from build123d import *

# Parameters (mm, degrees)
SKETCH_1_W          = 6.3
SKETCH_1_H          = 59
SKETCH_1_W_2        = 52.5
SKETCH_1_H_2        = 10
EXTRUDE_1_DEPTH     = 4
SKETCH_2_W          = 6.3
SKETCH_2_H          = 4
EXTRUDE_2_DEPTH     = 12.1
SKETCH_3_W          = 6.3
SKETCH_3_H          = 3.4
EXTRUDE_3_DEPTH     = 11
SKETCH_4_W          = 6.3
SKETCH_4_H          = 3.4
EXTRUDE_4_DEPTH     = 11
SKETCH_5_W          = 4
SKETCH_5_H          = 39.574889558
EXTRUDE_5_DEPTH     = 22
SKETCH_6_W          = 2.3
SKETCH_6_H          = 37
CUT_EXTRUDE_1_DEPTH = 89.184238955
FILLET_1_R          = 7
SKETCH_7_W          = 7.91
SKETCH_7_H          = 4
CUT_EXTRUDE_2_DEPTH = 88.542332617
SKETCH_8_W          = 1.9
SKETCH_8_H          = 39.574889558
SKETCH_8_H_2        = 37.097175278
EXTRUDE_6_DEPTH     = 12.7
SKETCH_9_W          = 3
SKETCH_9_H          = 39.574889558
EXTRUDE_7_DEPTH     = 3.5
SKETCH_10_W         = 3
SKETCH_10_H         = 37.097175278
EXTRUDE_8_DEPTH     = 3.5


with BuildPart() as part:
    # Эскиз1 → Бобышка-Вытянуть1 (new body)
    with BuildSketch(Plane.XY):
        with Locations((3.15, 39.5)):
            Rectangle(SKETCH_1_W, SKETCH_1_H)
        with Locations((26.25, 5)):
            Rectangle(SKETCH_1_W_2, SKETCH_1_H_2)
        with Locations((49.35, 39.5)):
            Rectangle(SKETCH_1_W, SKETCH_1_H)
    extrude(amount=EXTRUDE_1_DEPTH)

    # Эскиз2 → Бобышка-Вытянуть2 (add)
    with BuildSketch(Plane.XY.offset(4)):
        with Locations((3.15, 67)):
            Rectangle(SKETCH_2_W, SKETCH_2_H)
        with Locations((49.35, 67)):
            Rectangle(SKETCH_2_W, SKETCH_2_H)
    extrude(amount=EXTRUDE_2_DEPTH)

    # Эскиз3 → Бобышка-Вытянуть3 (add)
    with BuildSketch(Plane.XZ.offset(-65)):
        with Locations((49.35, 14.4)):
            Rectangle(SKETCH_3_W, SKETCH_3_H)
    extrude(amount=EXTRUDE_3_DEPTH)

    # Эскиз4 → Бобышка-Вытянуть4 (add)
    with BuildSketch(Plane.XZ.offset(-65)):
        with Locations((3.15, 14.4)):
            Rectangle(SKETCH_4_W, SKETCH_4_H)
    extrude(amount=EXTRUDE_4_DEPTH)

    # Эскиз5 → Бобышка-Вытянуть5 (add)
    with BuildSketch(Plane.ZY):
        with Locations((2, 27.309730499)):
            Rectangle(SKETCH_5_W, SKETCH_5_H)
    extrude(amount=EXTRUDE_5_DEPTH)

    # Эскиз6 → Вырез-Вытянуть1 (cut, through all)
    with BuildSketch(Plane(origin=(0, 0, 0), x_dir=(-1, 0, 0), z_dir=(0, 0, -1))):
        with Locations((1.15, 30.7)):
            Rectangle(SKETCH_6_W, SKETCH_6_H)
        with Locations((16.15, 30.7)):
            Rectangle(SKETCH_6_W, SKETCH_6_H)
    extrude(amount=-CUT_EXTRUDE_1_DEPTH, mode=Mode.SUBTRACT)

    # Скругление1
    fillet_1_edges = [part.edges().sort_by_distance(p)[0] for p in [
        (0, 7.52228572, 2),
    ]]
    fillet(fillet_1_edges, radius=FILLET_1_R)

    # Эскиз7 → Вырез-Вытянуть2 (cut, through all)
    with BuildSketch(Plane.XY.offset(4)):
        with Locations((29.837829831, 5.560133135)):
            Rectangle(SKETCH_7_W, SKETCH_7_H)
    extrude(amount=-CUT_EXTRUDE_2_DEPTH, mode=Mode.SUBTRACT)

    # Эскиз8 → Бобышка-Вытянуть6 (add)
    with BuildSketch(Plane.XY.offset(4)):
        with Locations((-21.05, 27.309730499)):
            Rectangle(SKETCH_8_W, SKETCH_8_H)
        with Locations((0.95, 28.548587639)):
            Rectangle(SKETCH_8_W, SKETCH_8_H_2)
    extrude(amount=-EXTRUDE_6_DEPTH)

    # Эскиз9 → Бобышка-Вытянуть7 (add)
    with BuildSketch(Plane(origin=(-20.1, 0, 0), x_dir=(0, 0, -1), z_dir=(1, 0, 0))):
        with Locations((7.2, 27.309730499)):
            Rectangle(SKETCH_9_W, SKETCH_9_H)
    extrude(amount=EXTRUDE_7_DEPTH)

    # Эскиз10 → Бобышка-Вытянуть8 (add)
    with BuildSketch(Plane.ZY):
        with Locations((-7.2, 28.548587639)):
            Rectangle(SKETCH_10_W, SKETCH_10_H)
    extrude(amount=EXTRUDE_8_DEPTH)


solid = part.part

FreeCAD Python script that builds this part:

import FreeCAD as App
import Part
import Sketcher
Q = App.Units.Quantity


def edges_at(feature, points):
    """Names of the edges that pass closest to the given points."""
    edges = feature.Shape.Edges
    near = lambda p: min(range(len(edges)), key=lambda i: edges[i].distToShape(Part.Vertex(*p))[0])
    return sorted({f"Edge{near(p) + 1}" for p in points})

doc = App.newDocument("Part")
body = doc.addObject("PartDesign::Body", "Body")

sketch1 = doc.addObject("Sketcher::SketchObject", "Sketch")
body.addObject(sketch1)
sketch1.AttachmentSupport = (doc.XY_Plane, [""])
sketch1.MapMode = "FlatFace"
sketch1.addGeometry(Part.LineSegment(App.Vector(0, 69, 0), App.Vector(0, 0, 0)), False)
sketch1.addGeometry(Part.LineSegment(App.Vector(0, 0, 0), App.Vector(52, 0, 0)), False)
sketch1.addGeometry(Part.LineSegment(App.Vector(52, 0, 0), App.Vector(52, 69, 0)), False)
sketch1.addGeometry(Part.LineSegment(App.Vector(52, 69, 0), App.Vector(46, 69, 0)), False)
sketch1.addGeometry(Part.LineSegment(App.Vector(46, 69, 0), App.Vector(46, 10, 0)), False)
sketch1.addGeometry(Part.LineSegment(App.Vector(46, 10, 0), App.Vector(6, 10, 0)), False)
sketch1.addGeometry(Part.LineSegment(App.Vector(6, 10, 0), App.Vector(6, 69, 0)), False)
sketch1.addGeometry(Part.LineSegment(App.Vector(6, 69, 0), App.Vector(0, 69, 0)), False)
sketch1.addConstraint(Sketcher.Constraint("Coincident", 0, 2, 1, 1))
sketch1.addConstraint(Sketcher.Constraint("Coincident", 1, 2, 2, 1))
sketch1.addConstraint(Sketcher.Constraint("Coincident", 2, 2, 3, 1))
sketch1.addConstraint(Sketcher.Constraint("Coincident", 3, 2, 4, 1))
sketch1.addConstraint(Sketcher.Constraint("Coincident", 4, 2, 5, 1))
sketch1.addConstraint(Sketcher.Constraint("Coincident", 5, 2, 6, 1))
sketch1.addConstraint(Sketcher.Constraint("Coincident", 6, 2, 7, 1))
sketch1.addConstraint(Sketcher.Constraint("Coincident", 7, 2, 0, 1))
sketch1.addConstraint(Sketcher.Constraint("Vertical", 0))
sketch1.addConstraint(Sketcher.Constraint("Horizontal", 1))
sketch1.addConstraint(Sketcher.Constraint("Vertical", 2))
sketch1.addConstraint(Sketcher.Constraint("Horizontal", 3))
sketch1.addConstraint(Sketcher.Constraint("Vertical", 4))
sketch1.addConstraint(Sketcher.Constraint("Horizontal", 5))
sketch1.addConstraint(Sketcher.Constraint("Vertical", 6))
sketch1.addConstraint(Sketcher.Constraint("Horizontal", 7))
sketch1.addConstraint(Sketcher.Constraint("Coincident", 0, 2, -1, 1))
sketch1.addConstraint(Sketcher.Constraint("Horizontal", 3, 2, 6, 2))
sketch1.addConstraint(Sketcher.Constraint("Equal", 3, 7))
sketch1.addConstraint(Sketcher.Constraint("DistanceY", 0, 2, 0, 1, Q("69 mm")))
sketch1.addConstraint(Sketcher.Constraint("DistanceY", 4, 2, 4, 1, Q("59 mm")))
sketch1.addConstraint(Sketcher.Constraint("DistanceX", 1, 1, 1, 2, Q("52.5 mm")))
sketch1.addConstraint(Sketcher.Constraint("DistanceX", 3, 2, 3, 1, Q("6.3 mm")))
pad1 = doc.addObject("PartDesign::Pad", "Pad")
body.addObject(pad1)
pad1.Profile = sketch1
pad1.Length = 4

sketch2 = doc.addObject("Sketcher::SketchObject", "Sketch001")
body.addObject(sketch2)
sketch2.AttachmentSupport = (doc.XY_Plane, [""])
sketch2.MapMode = "FlatFace"
sketch2.AttachmentOffset = App.Placement(App.Vector(0, 0, 4), App.Rotation())
sketch2.addGeometry(Part.LineSegment(App.Vector(0, 69, 0), App.Vector(0, 65, 0)), False)
sketch2.addGeometry(Part.LineSegment(App.Vector(0, 65, 0), App.Vector(6.3, 65, 0)), False)
sketch2.addGeometry(Part.LineSegment(App.Vector(6.3, 65, 0), App.Vector(6.3, 69, 0)), False)
sketch2.addGeometry(Part.LineSegment(App.Vector(6.3, 69, 0), App.Vector(0, 69, 0)), False)
sketch2.addGeometry(Part.LineSegment(App.Vector(46.2, 69, 0), App.Vector(46.2, 65, 0)), False)
sketch2.addGeometry(Part.LineSegment(App.Vector(46.2, 65, 0), App.Vector(52.5, 65, 0)), False)
sketch2.addGeometry(Part.LineSegment(App.Vector(52.5, 65, 0), App.Vector(52.5, 69, 0)), False)
sketch2.addGeometry(Part.LineSegment(App.Vector(52.5, 69, 0), App.Vector(46.2, 69, 0)), False)
sketch2.addConstraint(Sketcher.Constraint("Coincident", 0, 2, 1, 1))
sketch2.addConstraint(Sketcher.Constraint("Coincident", 1, 2, 2, 1))
sketch2.addConstraint(Sketcher.Constraint("Coincident", 2, 2, 3, 1))
sketch2.addConstraint(Sketcher.Constraint("Coincident", 3, 2, 0, 1))
sketch2.addConstraint(Sketcher.Constraint("Coincident", 4, 2, 5, 1))
sketch2.addConstraint(Sketcher.Constraint("Coincident", 5, 2, 6, 1))
sketch2.addConstraint(Sketcher.Constraint("Coincident", 6, 2, 7, 1))
sketch2.addConstraint(Sketcher.Constraint("Coincident", 7, 2, 4, 1))
sketch2.addConstraint(Sketcher.Constraint("Vertical", 0))
sketch2.addConstraint(Sketcher.Constraint("Horizontal", 1))
sketch2.addConstraint(Sketcher.Constraint("Vertical", 2))
sketch2.addConstraint(Sketcher.Constraint("Horizontal", 3))
sketch2.addConstraint(Sketcher.Constraint("Vertical", 4))
sketch2.addConstraint(Sketcher.Constraint("Horizontal", 5))
sketch2.addConstraint(Sketcher.Constraint("Vertical", 6))
sketch2.addConstraint(Sketcher.Constraint("Horizontal", 7))
sketch2.addConstraint(Sketcher.Constraint("PointOnObject", 0, 2, -2))
sketch2.addConstraint(Sketcher.Constraint("Horizontal", 1, 2, 4, 2))
sketch2.addConstraint(Sketcher.Constraint("Horizontal", 3, 2, 6, 2))
sketch2.addConstraint(Sketcher.Constraint("Equal", 3, 5))
sketch2.addConstraint(Sketcher.Constraint("DistanceY", 0, 2, 0, 1, Q("4 mm")))
sketch2.addConstraint(Sketcher.Constraint("DistanceX", 1, 1, 1, 2, Q("6.3 mm")))
sketch2.addConstraint(Sketcher.Constraint("DistanceY", -1, 1, 0, 2, Q("65 mm")))
sketch2.addConstraint(Sketcher.Constraint("DistanceX", -1, 1, 4, 2, Q("46.2 mm")))
pad2 = doc.addObject("PartDesign::Pad", "Pad001")
body.addObject(pad2)
pad2.Profile = sketch2
pad2.Length = 12.1

sketch3 = doc.addObject("Sketcher::SketchObject", "Sketch002")
body.addObject(sketch3)
sketch3.AttachmentSupport = (doc.XZ_Plane, [""])
sketch3.MapMode = "FlatFace"
sketch3.AttachmentOffset = App.Placement(App.Vector(0, 0, -65), App.Rotation())
sketch3.addGeometry(Part.LineSegment(App.Vector(46.2, 16.1, 0), App.Vector(46.2, 12.7, 0)), False)
sketch3.addGeometry(Part.LineSegment(App.Vector(46.2, 12.7, 0), App.Vector(52.5, 12.7, 0)), False)
sketch3.addGeometry(Part.LineSegment(App.Vector(52.5, 12.7, 0), App.Vector(52.5, 16.1, 0)), False)
sketch3.addGeometry(Part.LineSegment(App.Vector(52.5, 16.1, 0), App.Vector(46.2, 16.1, 0)), False)
sketch3.addConstraint(Sketcher.Constraint("Coincident", 0, 2, 1, 1))
sketch3.addConstraint(Sketcher.Constraint("Coincident", 1, 2, 2, 1))
sketch3.addConstraint(Sketcher.Constraint("Coincident", 2, 2, 3, 1))
sketch3.addConstraint(Sketcher.Constraint("Coincident", 3, 2, 0, 1))
sketch3.addConstraint(Sketcher.Constraint("Vertical", 0))
sketch3.addConstraint(Sketcher.Constraint("Horizontal", 1))
sketch3.addConstraint(Sketcher.Constraint("Vertical", 2))
sketch3.addConstraint(Sketcher.Constraint("Horizontal", 3))
sketch3.addConstraint(Sketcher.Constraint("DistanceX", 1, 1, 1, 2, Q("6.3 mm")))
sketch3.addConstraint(Sketcher.Constraint("DistanceY", 0, 2, 0, 1, Q("3.4 mm")))
sketch3.addConstraint(Sketcher.Constraint("DistanceX", -1, 1, 0, 2, Q("46.2 mm")))
sketch3.addConstraint(Sketcher.Constraint("DistanceY", -1, 1, 0, 2, Q("12.7 mm")))
pad3 = doc.addObject("PartDesign::Pad", "Pad002")
body.addObject(pad3)
pad3.Profile = sketch3
pad3.Length = 11

sketch4 = doc.addObject("Sketcher::SketchObject", "Sketch003")
body.addObject(sketch4)
sketch4.AttachmentSupport = (doc.XZ_Plane, [""])
sketch4.MapMode = "FlatFace"
sketch4.AttachmentOffset = App.Placement(App.Vector(0, 0, -65), App.Rotation())
sketch4.addGeometry(Part.LineSegment(App.Vector(0, 16.1, 0), App.Vector(0, 12.7, 0)), False)
sketch4.addGeometry(Part.LineSegment(App.Vector(0, 12.7, 0), App.Vector(6.3, 12.7, 0)), False)
sketch4.addGeometry(Part.LineSegment(App.Vector(6.3, 12.7, 0), App.Vector(6.3, 16.1, 0)), False)
sketch4.addGeometry(Part.LineSegment(App.Vector(6.3, 16.1, 0), App.Vector(0, 16.1, 0)), False)
sketch4.addConstraint(Sketcher.Constraint("Coincident", 0, 2, 1, 1))
sketch4.addConstraint(Sketcher.Constraint("Coincident", 1, 2, 2, 1))
sketch4.addConstraint(Sketcher.Constraint("Coincident", 2, 2, 3, 1))
sketch4.addConstraint(Sketcher.Constraint("Coincident", 3, 2, 0, 1))
sketch4.addConstraint(Sketcher.Constraint("Vertical", 0))
sketch4.addConstraint(Sketcher.Constraint("Horizontal", 1))
sketch4.addConstraint(Sketcher.Constraint("Vertical", 2))
sketch4.addConstraint(Sketcher.Constraint("Horizontal", 3))
sketch4.addConstraint(Sketcher.Constraint("PointOnObject", 0, 2, -2))
sketch4.addConstraint(Sketcher.Constraint("DistanceX", 1, 1, 1, 2, Q("6.3 mm")))
sketch4.addConstraint(Sketcher.Constraint("DistanceY", 0, 2, 0, 1, Q("3.4 mm")))
sketch4.addConstraint(Sketcher.Constraint("DistanceY", -1, 1, 0, 2, Q("12.7 mm")))
pad4 = doc.addObject("PartDesign::Pad", "Pad003")
body.addObject(pad4)
pad4.Profile = sketch4
pad4.Length = 11

sketch5 = doc.addObject("Sketcher::SketchObject", "Sketch004")
body.addObject(sketch5)
sketch5.AttachmentSupport = (doc.YZ_Plane, [""])
sketch5.MapMode = "FlatFace"
sketch5.addGeometry(Part.LineSegment(App.Vector(47.1, 0, 0), App.Vector(7.5, 0, 0)), False)
sketch5.addGeometry(Part.LineSegment(App.Vector(7.5, 0, 0), App.Vector(7.5, 4, 0)), False)
sketch5.addGeometry(Part.LineSegment(App.Vector(7.5, 4, 0), App.Vector(47.1, 4, 0)), False)
sketch5.addGeometry(Part.LineSegment(App.Vector(47.1, 4, 0), App.Vector(47.1, 0, 0)), False)
sketch5.addConstraint(Sketcher.Constraint("Coincident", 0, 2, 1, 1))
sketch5.addConstraint(Sketcher.Constraint("Coincident", 1, 2, 2, 1))
sketch5.addConstraint(Sketcher.Constraint("Coincident", 2, 2, 3, 1))
sketch5.addConstraint(Sketcher.Constraint("Coincident", 3, 2, 0, 1))
sketch5.addConstraint(Sketcher.Constraint("Horizontal", 0))
sketch5.addConstraint(Sketcher.Constraint("Vertical", 1))
sketch5.addConstraint(Sketcher.Constraint("Horizontal", 2))
sketch5.addConstraint(Sketcher.Constraint("Vertical", 3))
sketch5.addConstraint(Sketcher.Constraint("PointOnObject", 0, 2, -1))
sketch5.addConstraint(Sketcher.Constraint("DistanceY", 1, 1, 1, 2, Q("4 mm")))
sketch5.addConstraint(Sketcher.Constraint("DistanceX", 0, 2, 0, 1, Q("39.57489 mm")))
sketch5.addConstraint(Sketcher.Constraint("DistanceX", -1, 1, 0, 2, Q("7.522286 mm")))
pad5 = doc.addObject("PartDesign::Pad", "Pad004")
body.addObject(pad5)
pad5.Profile = sketch5
pad5.Length = 22
pad5.Reversed = True

sketch6 = doc.addObject("Sketcher::SketchObject", "Sketch005")
body.addObject(sketch6)
sketch6.AttachmentSupport = (doc.XY_Plane, [""])
sketch6.MapMode = "FlatFace"
sketch6.addGeometry(Part.LineSegment(App.Vector(0, 49.2, 0), App.Vector(0, 12.2, 0)), False)
sketch6.addGeometry(Part.LineSegment(App.Vector(0, 12.2, 0), App.Vector(-2.3, 12.2, 0)), False)
sketch6.addGeometry(Part.LineSegment(App.Vector(-2.3, 12.2, 0), App.Vector(-2.3, 49.2, 0)), False)
sketch6.addGeometry(Part.LineSegment(App.Vector(-2.3, 49.2, 0), App.Vector(0, 49.2, 0)), False)
sketch6.addGeometry(Part.LineSegment(App.Vector(-15, 49.2, 0), App.Vector(-15, 12.2, 0)), False)
sketch6.addGeometry(Part.LineSegment(App.Vector(-15, 12.2, 0), App.Vector(-17.3, 12.2, 0)), False)
sketch6.addGeometry(Part.LineSegment(App.Vector(-17.3, 12.2, 0), App.Vector(-17.3, 49.2, 0)), False)
sketch6.addGeometry(Part.LineSegment(App.Vector(-17.3, 49.2, 0), App.Vector(-15, 49.2, 0)), False)
sketch6.addConstraint(Sketcher.Constraint("Coincident", 0, 2, 1, 1))
sketch6.addConstraint(Sketcher.Constraint("Coincident", 1, 2, 2, 1))
sketch6.addConstraint(Sketcher.Constraint("Coincident", 2, 2, 3, 1))
sketch6.addConstraint(Sketcher.Constraint("Coincident", 3, 2, 0, 1))
sketch6.addConstraint(Sketcher.Constraint("Coincident", 4, 2, 5, 1))
sketch6.addConstraint(Sketcher.Constraint("Coincident", 5, 2, 6, 1))
sketch6.addConstraint(Sketcher.Constraint("Coincident", 6, 2, 7, 1))
sketch6.addConstraint(Sketcher.Constraint("Coincident", 7, 2, 4, 1))
sketch6.addConstraint(Sketcher.Constraint("Vertical", 0))
sketch6.addConstraint(Sketcher.Constraint("Horizontal", 1))
sketch6.addConstraint(Sketcher.Constraint("Vertical", 2))
sketch6.addConstraint(Sketcher.Constraint("Horizontal", 3))
sketch6.addConstraint(Sketcher.Constraint("Vertical", 4))
sketch6.addConstraint(Sketcher.Constraint("Horizontal", 5))
sketch6.addConstraint(Sketcher.Constraint("Vertical", 6))
sketch6.addConstraint(Sketcher.Constraint("Horizontal", 7))
sketch6.addConstraint(Sketcher.Constraint("PointOnObject", 0, 2, -2))
sketch6.addConstraint(Sketcher.Constraint("Horizontal", 1, 2, 4, 2))
sketch6.addConstraint(Sketcher.Constraint("Horizontal", 3, 2, 6, 2))
sketch6.addConstraint(Sketcher.Constraint("Equal", 3, 5))
sketch6.addConstraint(Sketcher.Constraint("DistanceY", 0, 2, 0, 1, Q("37 mm")))
sketch6.addConstraint(Sketcher.Constraint("DistanceX", 1, 2, 1, 1, Q("2.3 mm")))
sketch6.addConstraint(Sketcher.Constraint("DistanceX", 4, 2, -1, 1, Q("15 mm")))
sketch6.addConstraint(Sketcher.Constraint("DistanceY", -1, 1, 0, 2, Q("12.2 mm")))
pocket1 = doc.addObject("PartDesign::Pocket", "Pocket")
body.addObject(pocket1)
pocket1.Profile = sketch6
pocket1.Type = "ThroughAll"
pocket1.Reversed = True
doc.recompute()

fillet = doc.addObject("PartDesign::Fillet", "Fillet")
body.addObject(fillet)
fillet.Base = (pocket1, edges_at(pocket1, [(0, 7.522, 2)]))
fillet.Radius = 7

sketch7 = doc.addObject("Sketcher::SketchObject", "Sketch006")
body.addObject(sketch7)
sketch7.AttachmentSupport = (doc.XY_Plane, [""])
sketch7.MapMode = "FlatFace"
sketch7.AttachmentOffset = App.Placement(App.Vector(0, 0, 4), App.Rotation())
sketch7.addGeometry(Part.LineSegment(App.Vector(25.9, 7.6, 0), App.Vector(25.9, 3.6, 0)), False)
sketch7.addGeometry(Part.LineSegment(App.Vector(25.9, 3.6, 0), App.Vector(33.8, 3.6, 0)), False)
sketch7.addGeometry(Part.LineSegment(App.Vector(33.8, 3.6, 0), App.Vector(33.8, 7.6, 0)), False)
sketch7.addGeometry(Part.LineSegment(App.Vector(33.8, 7.6, 0), App.Vector(25.9, 7.6, 0)), False)
sketch7.addConstraint(Sketcher.Constraint("Coincident", 0, 2, 1, 1))
sketch7.addConstraint(Sketcher.Constraint("Coincident", 1, 2, 2, 1))
sketch7.addConstraint(Sketcher.Constraint("Coincident", 2, 2, 3, 1))
sketch7.addConstraint(Sketcher.Constraint("Coincident", 3, 2, 0, 1))
sketch7.addConstraint(Sketcher.Constraint("Vertical", 0))
sketch7.addConstraint(Sketcher.Constraint("Horizontal", 1))
sketch7.addConstraint(Sketcher.Constraint("Vertical", 2))
sketch7.addConstraint(Sketcher.Constraint("Horizontal", 3))
sketch7.addConstraint(Sketcher.Constraint("DistanceY", 0, 2, 0, 1, Q("4 mm")))
sketch7.addConstraint(Sketcher.Constraint("DistanceX", 1, 1, 1, 2, Q("7.91 mm")))
sketch7.addConstraint(Sketcher.Constraint("DistanceX", -1, 1, 0, 2, Q("25.88283 mm")))
sketch7.addConstraint(Sketcher.Constraint("DistanceY", -1, 1, 0, 2, Q("3.560133 mm")))
pocket2 = doc.addObject("PartDesign::Pocket", "Pocket001")
body.addObject(pocket2)
pocket2.Profile = sketch7
pocket2.Type = "ThroughAll"

sketch8 = doc.addObject("Sketcher::SketchObject", "Sketch007")
body.addObject(sketch8)
sketch8.AttachmentSupport = (doc.XY_Plane, [""])
sketch8.MapMode = "FlatFace"
sketch8.AttachmentOffset = App.Placement(App.Vector(0, 0, 4), App.Rotation())
sketch8.addGeometry(Part.LineSegment(App.Vector(-22, 47.1, 0), App.Vector(-22, 7.5, 0)), False)
sketch8.addGeometry(Part.LineSegment(App.Vector(-22, 7.5, 0), App.Vector(-20.1, 7.5, 0)), False)
sketch8.addGeometry(Part.LineSegment(App.Vector(-20.1, 7.5, 0), App.Vector(-20.1, 47.1, 0)), False)
sketch8.addGeometry(Part.LineSegment(App.Vector(-20.1, 47.1, 0), App.Vector(-22, 47.1, 0)), False)
sketch8.addGeometry(Part.LineSegment(App.Vector(0, 47.1, 0), App.Vector(0, 10, 0)), False)
sketch8.addGeometry(Part.LineSegment(App.Vector(0, 10, 0), App.Vector(1.9, 10, 0)), False)
sketch8.addGeometry(Part.LineSegment(App.Vector(1.9, 10, 0), App.Vector(1.9, 47.1, 0)), False)
sketch8.addGeometry(Part.LineSegment(App.Vector(1.9, 47.1, 0), App.Vector(0, 47.1, 0)), False)
sketch8.addConstraint(Sketcher.Constraint("Coincident", 0, 2, 1, 1))
sketch8.addConstraint(Sketcher.Constraint("Coincident", 1, 2, 2, 1))
sketch8.addConstraint(Sketcher.Constraint("Coincident", 2, 2, 3, 1))
sketch8.addConstraint(Sketcher.Constraint("Coincident", 3, 2, 0, 1))
sketch8.addConstraint(Sketcher.Constraint("Coincident", 4, 2, 5, 1))
sketch8.addConstraint(Sketcher.Constraint("Coincident", 5, 2, 6, 1))
sketch8.addConstraint(Sketcher.Constraint("Coincident", 6, 2, 7, 1))
sketch8.addConstraint(Sketcher.Constraint("Coincident", 7, 2, 4, 1))
sketch8.addConstraint(Sketcher.Constraint("Vertical", 0))
sketch8.addConstraint(Sketcher.Constraint("Horizontal", 1))
sketch8.addConstraint(Sketcher.Constraint("Vertical", 2))
sketch8.addConstraint(Sketcher.Constraint("Horizontal", 3))
sketch8.addConstraint(Sketcher.Constraint("Vertical", 4))
sketch8.addConstraint(Sketcher.Constraint("Horizontal", 5))
sketch8.addConstraint(Sketcher.Constraint("Vertical", 6))
sketch8.addConstraint(Sketcher.Constraint("Horizontal", 7))
sketch8.addConstraint(Sketcher.Constraint("PointOnObject", 4, 2, -2))
sketch8.addConstraint(Sketcher.Constraint("Horizontal", 3, 2, 6, 2))
sketch8.addConstraint(Sketcher.Constraint("Equal", 3, 5))
sketch8.addConstraint(Sketcher.Constraint("DistanceX", 1, 1, 1, 2, Q("1.9 mm")))
sketch8.addConstraint(Sketcher.Constraint("DistanceX", 0, 2, -1, 1, Q("22 mm")))
sketch8.addConstraint(Sketcher.Constraint("DistanceY", -1, 1, 4, 2, Q("10 mm")))
sketch8.addConstraint(Sketcher.Constraint("DistanceY", 0, 2, 0, 1, Q("39.57489 mm")))
sketch8.addConstraint(Sketcher.Constraint("DistanceY", 4, 2, 4, 1, Q("37.097175 mm")))
pad6 = doc.addObject("PartDesign::Pad", "Pad005")
body.addObject(pad6)
pad6.Profile = sketch8
pad6.Length = 12.7
pad6.Reversed = True

sketch9 = doc.addObject("Sketcher::SketchObject", "Sketch008")
body.addObject(sketch9)
sketch9.AttachmentSupport = (doc.YZ_Plane, [""])
sketch9.MapMode = "FlatFace"
sketch9.AttachmentOffset = App.Placement(App.Vector(0, 0, -20.1), App.Rotation())
sketch9.addGeometry(Part.LineSegment(App.Vector(47.1, -5.7, 0), App.Vector(7.5, -5.7, 0)), False)
sketch9.addGeometry(Part.LineSegment(App.Vector(7.5, -5.7, 0), App.Vector(7.5, -8.7, 0)), False)
sketch9.addGeometry(Part.LineSegment(App.Vector(7.5, -8.7, 0), App.Vector(47.1, -8.7, 0)), False)
sketch9.addGeometry(Part.LineSegment(App.Vector(47.1, -8.7, 0), App.Vector(47.1, -5.7, 0)), False)
sketch9.addConstraint(Sketcher.Constraint("Coincident", 0, 2, 1, 1))
sketch9.addConstraint(Sketcher.Constraint("Coincident", 1, 2, 2, 1))
sketch9.addConstraint(Sketcher.Constraint("Coincident", 2, 2, 3, 1))
sketch9.addConstraint(Sketcher.Constraint("Coincident", 3, 2, 0, 1))
sketch9.addConstraint(Sketcher.Constraint("Horizontal", 0))
sketch9.addConstraint(Sketcher.Constraint("Vertical", 1))
sketch9.addConstraint(Sketcher.Constraint("Horizontal", 2))
sketch9.addConstraint(Sketcher.Constraint("Vertical", 3))
sketch9.addConstraint(Sketcher.Constraint("DistanceY", 1, 2, 1, 1, Q("3 mm")))
sketch9.addConstraint(Sketcher.Constraint("DistanceY", 0, 2, -1, 1, Q("5.7 mm")))
sketch9.addConstraint(Sketcher.Constraint("DistanceX", 0, 2, 0, 1, Q("39.57489 mm")))
sketch9.addConstraint(Sketcher.Constraint("DistanceX", -1, 1, 0, 2, Q("7.522286 mm")))
pad7 = doc.addObject("PartDesign::Pad", "Pad006")
body.addObject(pad7)
pad7.Profile = sketch9
pad7.Length = 3.5

sketch10 = doc.addObject("Sketcher::SketchObject", "Sketch009")
body.addObject(sketch10)
sketch10.AttachmentSupport = (doc.YZ_Plane, [""])
sketch10.MapMode = "FlatFace"
sketch10.addGeometry(Part.LineSegment(App.Vector(47.1, -8.7, 0), App.Vector(10, -8.7, 0)), False)
sketch10.addGeometry(Part.LineSegment(App.Vector(10, -8.7, 0), App.Vector(10, -5.7, 0)), False)
sketch10.addGeometry(Part.LineSegment(App.Vector(10, -5.7, 0), App.Vector(47.1, -5.7, 0)), False)
sketch10.addGeometry(Part.LineSegment(App.Vector(47.1, -5.7, 0), App.Vector(47.1, -8.7, 0)), False)
sketch10.addConstraint(Sketcher.Constraint("Coincident", 0, 2, 1, 1))
sketch10.addConstraint(Sketcher.Constraint("Coincident", 1, 2, 2, 1))
sketch10.addConstraint(Sketcher.Constraint("Coincident", 2, 2, 3, 1))
sketch10.addConstraint(Sketcher.Constraint("Coincident", 3, 2, 0, 1))
sketch10.addConstraint(Sketcher.Constraint("Horizontal", 0))
sketch10.addConstraint(Sketcher.Constraint("Vertical", 1))
sketch10.addConstraint(Sketcher.Constraint("Horizontal", 2))
sketch10.addConstraint(Sketcher.Constraint("Vertical", 3))
sketch10.addConstraint(Sketcher.Constraint("DistanceY", 1, 1, 1, 2, Q("3 mm")))
sketch10.addConstraint(Sketcher.Constraint("DistanceX", -1, 1, 0, 2, Q("10 mm")))
sketch10.addConstraint(Sketcher.Constraint("DistanceY", 0, 2, -1, 1, Q("8.7 mm")))
sketch10.addConstraint(Sketcher.Constraint("DistanceX", 0, 2, 0, 1, Q("37.097175 mm")))
pad8 = doc.addObject("PartDesign::Pad", "Pad007")
body.addObject(pad8)
pad8.Profile = sketch10
pad8.Length = 3.5
pad8.Reversed = True

doc.recompute()
